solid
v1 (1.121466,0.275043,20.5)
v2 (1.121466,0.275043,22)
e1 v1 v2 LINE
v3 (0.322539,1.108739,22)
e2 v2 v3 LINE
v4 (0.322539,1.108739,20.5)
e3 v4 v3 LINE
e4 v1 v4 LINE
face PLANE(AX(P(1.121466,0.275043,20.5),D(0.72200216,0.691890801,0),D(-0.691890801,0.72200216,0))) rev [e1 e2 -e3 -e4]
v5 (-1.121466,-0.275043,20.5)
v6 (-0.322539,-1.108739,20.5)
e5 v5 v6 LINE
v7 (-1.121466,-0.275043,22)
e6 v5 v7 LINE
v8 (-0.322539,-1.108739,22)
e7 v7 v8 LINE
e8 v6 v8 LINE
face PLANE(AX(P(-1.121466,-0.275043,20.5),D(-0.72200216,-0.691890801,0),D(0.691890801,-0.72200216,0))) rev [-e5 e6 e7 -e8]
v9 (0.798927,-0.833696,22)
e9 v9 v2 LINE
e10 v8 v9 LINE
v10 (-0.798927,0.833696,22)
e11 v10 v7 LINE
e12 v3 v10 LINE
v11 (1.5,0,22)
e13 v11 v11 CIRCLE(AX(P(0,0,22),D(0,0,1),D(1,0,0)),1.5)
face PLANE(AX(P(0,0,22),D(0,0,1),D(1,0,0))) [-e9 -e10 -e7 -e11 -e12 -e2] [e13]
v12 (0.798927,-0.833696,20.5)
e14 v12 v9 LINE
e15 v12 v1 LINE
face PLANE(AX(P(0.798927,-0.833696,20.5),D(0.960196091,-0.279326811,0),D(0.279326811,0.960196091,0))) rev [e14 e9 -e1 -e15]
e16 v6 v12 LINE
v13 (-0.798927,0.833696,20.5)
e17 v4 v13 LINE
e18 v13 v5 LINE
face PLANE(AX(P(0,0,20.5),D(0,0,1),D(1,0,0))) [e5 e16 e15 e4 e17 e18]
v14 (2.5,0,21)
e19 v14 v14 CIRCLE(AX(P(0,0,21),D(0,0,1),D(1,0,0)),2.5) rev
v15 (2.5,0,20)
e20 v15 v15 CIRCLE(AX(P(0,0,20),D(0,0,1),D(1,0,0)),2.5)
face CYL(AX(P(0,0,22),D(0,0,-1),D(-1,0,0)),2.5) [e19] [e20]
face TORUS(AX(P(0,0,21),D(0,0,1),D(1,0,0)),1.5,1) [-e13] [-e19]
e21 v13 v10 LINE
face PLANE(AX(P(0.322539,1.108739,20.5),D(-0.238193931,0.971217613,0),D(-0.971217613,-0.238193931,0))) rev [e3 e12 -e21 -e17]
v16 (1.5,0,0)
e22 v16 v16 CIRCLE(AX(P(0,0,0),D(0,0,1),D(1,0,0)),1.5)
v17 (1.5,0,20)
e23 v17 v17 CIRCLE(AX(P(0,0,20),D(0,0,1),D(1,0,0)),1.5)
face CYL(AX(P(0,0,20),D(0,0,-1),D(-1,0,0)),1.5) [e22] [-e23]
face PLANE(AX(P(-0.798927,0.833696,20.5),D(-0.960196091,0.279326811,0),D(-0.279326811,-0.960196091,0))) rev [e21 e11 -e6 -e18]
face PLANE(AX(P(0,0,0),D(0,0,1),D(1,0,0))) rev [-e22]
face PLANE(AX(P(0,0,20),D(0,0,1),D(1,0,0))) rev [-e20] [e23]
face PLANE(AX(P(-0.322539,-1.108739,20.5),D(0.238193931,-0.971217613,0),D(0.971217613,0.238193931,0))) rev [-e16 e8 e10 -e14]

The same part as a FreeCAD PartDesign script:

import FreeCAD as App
import Part
import Sketcher
Q = App.Units.Quantity


def edges_at(feature, points):
    """Names of the edges that pass closest to the given points."""
    edges = feature.Shape.Edges
    near = lambda p: min(range(len(edges)), key=lambda i: edges[i].distToShape(Part.Vertex(*p))[0])
    return sorted({f"Edge{near(p) + 1}" for p in points})


def add_polygon(sketch, points):
    """Adds a closed chain of lines whose ends are joined by coincident constraints."""
    first, n = sketch.GeometryCount, len(points)
    for a, b in zip(points, points[1:] + points[:1]):
        sketch.addGeometry(Part.LineSegment(App.Vector(*a, 0), App.Vector(*b, 0)), False)
    for i in range(n):
        sketch.addConstraint(Sketcher.Constraint("Coincident", first + i, 2, first + (i + 1) % n, 1))

doc = App.newDocument("Part")
params = doc.addObject("Spreadsheet::Sheet", "Params")
for row, (alias, value) in enumerate([
    ("sketch1_diameter", "3 mm"),
    ("pad1_length", "20 mm"),
    ("sketch2_diameter", "5 mm"),
    ("pad2_length", "2 mm"),
    ("pocket1_length", "1.5 mm"),
    ("fillet_radius", "1 mm"),
], start=1):
    params.set(f"A{row}", alias)
    params.set(f"B{row}", "=" + value)
    params.setAlias(f"B{row}", alias)

body = doc.addObject("PartDesign::Body", "Body")

# Sketch on XY plane
sketch1 = body.newObject("Sketcher::SketchObject", "Sketch")
sketch1.AttachmentSupport = (doc.getObject("XY_Plane"), [""])
sketch1.MapMode = "FlatFace"
sketch1.addGeometry(Part.Circle(App.Vector(0, 0, 0), App.Vector(0, 0, 1), 1.5), False)
sketch1.addConstraint([
    Sketcher.Constraint("Coincident", 0, 3, -1, 1),
    Sketcher.Constraint("Diameter", 0, Q("3 mm")),
])
sketch1.setExpression("Constraints[1]", "Params.sketch1_diameter")
pad1 = body.newObject("PartDesign::Pad", "Pad")
pad1.Profile = sketch1
pad1.setExpression("Length", "Params.pad1_length")

# Sketch on XY plane
sketch2 = body.newObject("Sketcher::SketchObject", "Sketch001")
sketch2.AttachmentSupport = (doc.getObject("XY_Plane"), [""])
sketch2.MapMode = "FlatFace"
sketch2.AttachmentOffset = App.Placement(App.Vector(0, 0, 20), App.Rotation())
sketch2.addGeometry(Part.Circle(App.Vector(0, 0, 0), App.Vector(0, 0, 1), 2.5), False)
sketch2.addConstraint([
    Sketcher.Constraint("Coincident", 0, 3, -1, 1),
    Sketcher.Constraint("Diameter", 0, Q("5 mm")),
])
sketch2.setExpression("Constraints[1]", "Params.sketch2_diameter")
pad2 = body.newObject("PartDesign::Pad", "Pad001")
pad2.Profile = sketch2
pad2.setExpression("Length", "Params.pad2_length")

# Sketch on XY plane
sketch3 = body.newObject("Sketcher::SketchObject", "Sketch002")
sketch3.AttachmentSupport = (doc.getObject("XY_Plane"), [""])
sketch3.MapMode = "FlatFace"
sketch3.AttachmentOffset = App.Placement(App.Vector(0, 0, 22), App.Rotation())
add_polygon(sketch3, [(0.3, 1.1), (-0.8, 0.8), (-1.1, -0.3), (-0.3, -1.1), (0.8, -0.8), (1.1, 0.3)])  # lines 0-5
sketch3.addConstraint([
    Sketcher.Constraint("Symmetric", 0, 2, 3, 2, -1, 1),
    Sketcher.Constraint("Symmetric", 1, 2, 4, 2, -1, 1),
    Sketcher.Constraint("Symmetric", 2, 2, 5, 2, -1, 1),
    Sketcher.Constraint("Equal", 0, 1),
    Sketcher.Constraint("Equal", 1, 2),
    Sketcher.Constraint("Distance", 0, Q("1.154701 mm")),
    Sketcher.Constraint("DistanceX", 2, 2, -1, 1, Q("0.322539 mm")),
    Sketcher.Constraint("DistanceY", 2, 2, -1, 1, Q("1.108739 mm")),
    Sketcher.Constraint("DistanceX", 1, 2, 0, 2, Q("0.322539 mm")),
])
pocket1 = body.newObject("PartDesign::Pocket", "Pocket")
pocket1.Profile = sketch3
pocket1.setExpression("Length", "Params.pocket1_length")
doc.recompute()

fillet = body.newObject("PartDesign::Fillet", "Fillet")
fillet.Base = (pocket1, edges_at(pocket1, [(-2.5, 0, 22)]))
fillet.setExpression("Radius", "Params.fillet_radius")

doc.recompute()
